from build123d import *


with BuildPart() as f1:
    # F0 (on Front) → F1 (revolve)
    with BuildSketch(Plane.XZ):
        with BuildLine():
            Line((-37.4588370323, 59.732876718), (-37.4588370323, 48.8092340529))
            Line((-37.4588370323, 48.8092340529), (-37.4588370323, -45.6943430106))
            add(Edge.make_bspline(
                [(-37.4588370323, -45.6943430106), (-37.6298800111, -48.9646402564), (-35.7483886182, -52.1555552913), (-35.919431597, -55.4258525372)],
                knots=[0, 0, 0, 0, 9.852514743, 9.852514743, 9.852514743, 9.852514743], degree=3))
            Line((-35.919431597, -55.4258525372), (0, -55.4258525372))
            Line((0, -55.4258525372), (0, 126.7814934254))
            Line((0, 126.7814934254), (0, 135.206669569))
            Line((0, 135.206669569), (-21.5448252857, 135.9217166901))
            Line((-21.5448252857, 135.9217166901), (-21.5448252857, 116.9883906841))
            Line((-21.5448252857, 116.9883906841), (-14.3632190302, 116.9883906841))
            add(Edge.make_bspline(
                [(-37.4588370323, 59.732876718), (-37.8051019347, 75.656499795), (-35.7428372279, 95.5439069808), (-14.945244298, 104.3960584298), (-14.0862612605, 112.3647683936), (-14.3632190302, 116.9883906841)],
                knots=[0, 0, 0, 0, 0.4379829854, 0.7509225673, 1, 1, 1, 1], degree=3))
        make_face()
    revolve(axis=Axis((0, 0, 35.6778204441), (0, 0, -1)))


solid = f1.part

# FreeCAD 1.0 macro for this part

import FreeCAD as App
import Part
import Sketcher

doc = App.newDocument("Part")
body = doc.addObject("PartDesign::Body", "Body")

# Sketch on XZ plane
sketch1 = doc.addObject("Sketcher::SketchObject", "Sketch")
body.addObject(sketch1)
sketch1.AttachmentSupport = (doc.XZ_Plane, [""])
sketch1.MapMode = "FlatFace"
sketch1.addGeometry([
    Part.LineSegment(App.Vector(-37.458837, 59.732877, 0), App.Vector(-37.458837, -45.694343, 0)),  # 0
    Part.BSplineCurve([App.Vector(-37.458837, -45.694343, 0), App.Vector(-37.62988, -48.96464, 0), App.Vector(-35.748389, -52.155555, 0), App.Vector(-35.919432, -55.425853, 0)], [4, 4], [0, 9.852514743], False, 3, [1, 1, 1, 1], False),  # 1
    Part.LineSegment(App.Vector(-35.919432, -55.425853, 0), App.Vector(0, -55.425853, 0)),  # 2
    Part.LineSegment(App.Vector(0, -55.425853, 0), App.Vector(0, 135.20667, 0)),  # 3
    Part.LineSegment(App.Vector(0, 135.20667, 0), App.Vector(-21.544825, 135.921717, 0)),  # 4
    Part.LineSegment(App.Vector(-21.544825, 135.921717, 0), App.Vector(-21.544825, 116.988391, 0)),  # 5
    Part.LineSegment(App.Vector(-21.544825, 116.988391, 0), App.Vector(-14.363219, 116.988391, 0)),  # 6
    Part.BSplineCurve([App.Vector(-37.458837, 59.732877, 0), App.Vector(-37.805102, 75.6565, 0), App.Vector(-35.742837, 95.543907, 0), App.Vector(-14.945244, 104.396058, 0), App.Vector(-14.086261, 112.364768, 0), App.Vector(-14.363219, 116.988391, 0)], [4, 1, 1, 4], [0, 0.437982985, 0.750922567, 1], False, 3, [1, 1, 1, 1, 1, 1], False),  # 7
], False)
sketch1.addConstraint([
    Sketcher.Constraint("Block", 1),
    Sketcher.Constraint("Block", 7),
    Sketcher.Constraint("Coincident", 0, 2, 1, 1),
    Sketcher.Constraint("Coincident", 1, 2, 2, 1),
    Sketcher.Constraint("Coincident", 2, 2, 3, 1),
    Sketcher.Constraint("Coincident", 3, 2, 4, 1),
    Sketcher.Constraint("Coincident", 4, 2, 5, 1),
    Sketcher.Constraint("Coincident", 5, 2, 6, 1),
    Sketcher.Constraint("Coincident", 6, 2, 7, 2),
    Sketcher.Constraint("Coincident", 7, 1, 0, 1),
    Sketcher.Constraint("Horizontal", 2),
    Sketcher.Constraint("Vertical", 3),
    Sketcher.Constraint("Vertical", 5),
    Sketcher.Constraint("Horizontal", 6),
    Sketcher.Constraint("PointOnObject", 2, 2, -2),
    Sketcher.Constraint("DistanceX", 6, 1, 6, 2, 7.181606),
    Sketcher.Constraint("DistanceY", 3, 1, 3, 2, 190.632522),
    Sketcher.Constraint("DistanceY", 5, 2, 5, 1, 18.933326),
])
revolution = doc.addObject("PartDesign::Revolution", "Revolution")
body.addObject(revolution)
revolution.Profile = sketch1
revolution.ReferenceAxis = (sketch1, ["V_Axis"])
revolution.Angle = 360

doc.recompute()
